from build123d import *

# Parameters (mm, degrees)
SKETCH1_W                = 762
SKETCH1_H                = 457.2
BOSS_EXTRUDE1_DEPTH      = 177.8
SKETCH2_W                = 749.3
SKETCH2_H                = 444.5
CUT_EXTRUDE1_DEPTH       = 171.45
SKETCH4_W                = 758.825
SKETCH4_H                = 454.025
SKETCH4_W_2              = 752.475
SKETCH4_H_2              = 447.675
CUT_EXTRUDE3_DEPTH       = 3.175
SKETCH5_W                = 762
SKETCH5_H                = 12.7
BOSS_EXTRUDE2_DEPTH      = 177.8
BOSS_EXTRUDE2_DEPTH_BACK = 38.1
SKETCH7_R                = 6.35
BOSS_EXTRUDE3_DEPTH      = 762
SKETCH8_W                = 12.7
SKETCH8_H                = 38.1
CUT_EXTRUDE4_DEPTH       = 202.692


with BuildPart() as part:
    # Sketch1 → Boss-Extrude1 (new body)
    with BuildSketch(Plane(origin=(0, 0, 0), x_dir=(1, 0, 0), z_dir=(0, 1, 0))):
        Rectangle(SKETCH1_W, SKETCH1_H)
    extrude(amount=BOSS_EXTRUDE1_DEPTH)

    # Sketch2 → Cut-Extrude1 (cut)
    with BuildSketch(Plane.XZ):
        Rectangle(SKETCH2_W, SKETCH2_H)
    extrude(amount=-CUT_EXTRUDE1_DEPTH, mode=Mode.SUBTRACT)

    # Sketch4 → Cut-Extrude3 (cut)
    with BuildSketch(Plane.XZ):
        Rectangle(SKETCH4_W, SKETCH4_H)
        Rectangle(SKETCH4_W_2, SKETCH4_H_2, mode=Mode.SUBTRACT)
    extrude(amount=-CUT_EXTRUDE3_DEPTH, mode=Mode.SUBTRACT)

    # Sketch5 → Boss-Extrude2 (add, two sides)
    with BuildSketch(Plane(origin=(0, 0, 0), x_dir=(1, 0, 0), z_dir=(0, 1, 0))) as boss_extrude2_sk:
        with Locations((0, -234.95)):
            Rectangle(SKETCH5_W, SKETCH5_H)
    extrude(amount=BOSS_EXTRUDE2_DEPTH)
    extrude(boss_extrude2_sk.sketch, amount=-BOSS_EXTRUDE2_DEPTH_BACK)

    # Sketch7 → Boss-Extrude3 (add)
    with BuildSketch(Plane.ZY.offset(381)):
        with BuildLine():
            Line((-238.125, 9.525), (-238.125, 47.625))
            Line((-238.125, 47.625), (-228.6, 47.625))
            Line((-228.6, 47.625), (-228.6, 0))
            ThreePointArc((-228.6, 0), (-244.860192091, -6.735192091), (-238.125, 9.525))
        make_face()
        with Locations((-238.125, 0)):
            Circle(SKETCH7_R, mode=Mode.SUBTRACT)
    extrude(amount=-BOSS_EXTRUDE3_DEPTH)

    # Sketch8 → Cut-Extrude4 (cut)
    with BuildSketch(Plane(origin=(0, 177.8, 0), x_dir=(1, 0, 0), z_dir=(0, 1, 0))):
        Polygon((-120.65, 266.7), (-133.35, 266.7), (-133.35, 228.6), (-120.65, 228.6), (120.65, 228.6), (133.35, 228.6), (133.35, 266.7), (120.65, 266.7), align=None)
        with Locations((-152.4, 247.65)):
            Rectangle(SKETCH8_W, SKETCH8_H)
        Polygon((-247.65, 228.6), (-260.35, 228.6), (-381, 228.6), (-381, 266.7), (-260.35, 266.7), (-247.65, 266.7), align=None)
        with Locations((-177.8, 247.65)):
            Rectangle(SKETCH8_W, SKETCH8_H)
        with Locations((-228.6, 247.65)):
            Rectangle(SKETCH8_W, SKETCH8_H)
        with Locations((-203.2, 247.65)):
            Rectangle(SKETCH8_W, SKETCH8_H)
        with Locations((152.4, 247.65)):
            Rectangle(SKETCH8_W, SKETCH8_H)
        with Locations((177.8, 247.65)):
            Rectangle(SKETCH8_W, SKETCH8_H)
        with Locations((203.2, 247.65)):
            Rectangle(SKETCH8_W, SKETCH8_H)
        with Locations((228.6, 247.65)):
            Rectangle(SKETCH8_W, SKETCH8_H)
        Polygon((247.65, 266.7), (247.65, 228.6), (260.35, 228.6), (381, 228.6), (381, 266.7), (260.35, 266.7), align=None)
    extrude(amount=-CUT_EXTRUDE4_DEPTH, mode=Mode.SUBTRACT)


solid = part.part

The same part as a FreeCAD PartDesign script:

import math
import FreeCAD as App
import Part
import Sketcher
Q = App.Units.Quantity

doc = App.newDocument("Part")
params = doc.addObject("Spreadsheet::Sheet", "Params")
for row, (alias, value) in enumerate([
    ("sketch1_width", "30 in"),
    ("sketch1_height", "18 in"),
    ("pad1_length", "7 in"),
    ("sketch2_width", "29.5 in"),
    ("sketch2_height", "17.5 in"),
    ("pocket1_length", "6.75 in"),
    ("sketch3_width", "29.875 in"),
    ("sketch3_width2", "29.625 in"),
    ("sketch3_height", "17.875 in"),
    ("sketch3_height2", "17.625 in"),
    ("pocket2_length", "0.125 in"),
    ("sketch4_width", "30 in"),
    ("sketch4_height", "0.5 in"),
    ("pad2_length", "7 in"),
    ("pad2_length2", "1.5 in"),
    ("sketch5_diameter", "0.5 in"),
    ("sketch5_width", "1.5 in"),
    ("sketch5_radius", "0.375 in"),
    ("pad3_length", "30 in"),
    ("sketch6_width", "10.5 in"),
    ("sketch6_width2", "0.5 in"),
    ("sketch6_height", "1.5 in"),
    ("pocket3_length", "7.98 in"),
], start=1):
    params.set(f"A{row}", alias)
    params.set(f"B{row}", "=" + value)
    params.setAlias(f"B{row}", alias)

body = doc.addObject("PartDesign::Body", "Body")

# Sketch on XZ plane
sketch1 = doc.addObject("Sketcher::SketchObject", "Sketch")
body.addObject(sketch1)
sketch1.AttachmentSupport = (doc.XZ_Plane, [""])
sketch1.MapMode = "FlatFace"
sketch1.addGeometry(Part.LineSegment(App.Vector(-381, -228.6, 0), App.Vector(-381, 228.6, 0)), False)
sketch1.addGeometry(Part.LineSegment(App.Vector(-381, 228.6, 0), App.Vector(381, 228.6, 0)), False)
sketch1.addGeometry(Part.LineSegment(App.Vector(381, 228.6, 0), App.Vector(381, -228.6, 0)), False)
sketch1.addGeometry(Part.LineSegment(App.Vector(381, -228.6, 0), App.Vector(-381, -228.6, 0)), False)
sketch1.addConstraint(Sketcher.Constraint("Coincident", 0, 2, 1, 1))
sketch1.addConstraint(Sketcher.Constraint("Coincident", 1, 2, 2, 1))
sketch1.addConstraint(Sketcher.Constraint("Coincident", 2, 2, 3, 1))
sketch1.addConstraint(Sketcher.Constraint("Coincident", 3, 2, 0, 1))
sketch1.addConstraint(Sketcher.Constraint("Vertical", 0))
sketch1.addConstraint(Sketcher.Constraint("Horizontal", 1))
sketch1.addConstraint(Sketcher.Constraint("Vertical", 2))
sketch1.addConstraint(Sketcher.Constraint("Horizontal", 3))
sketch1.addConstraint(Sketcher.Constraint("Symmetric", 0, 2, 2, 2, -1, 1))
sketch1.addConstraint(Sketcher.Constraint("DistanceX", 1, 1, 1, 2, Q("30 in")))
sketch1.addConstraint(Sketcher.Constraint("DistanceY", 0, 1, 0, 2, Q("18 in")))
sketch1.setExpression("Constraints[9]", "Params.sketch1_width")
sketch1.setExpression("Constraints[10]", "Params.sketch1_height")
pad1 = doc.addObject("PartDesign::Pad", "Pad")
body.addObject(pad1)
pad1.Profile = sketch1
pad1.setExpression("Length", "Params.pad1_length")
pad1.Reversed = True

# Sketch on XZ plane
sketch2 = doc.addObject("Sketcher::SketchObject", "Sketch001")
body.addObject(sketch2)
sketch2.AttachmentSupport = (doc.XZ_Plane, [""])
sketch2.MapMode = "FlatFace"
sketch2.addGeometry(Part.LineSegment(App.Vector(-374.65, 222.25, 0), App.Vector(-374.65, -222.25, 0)), False)
sketch2.addGeometry(Part.LineSegment(App.Vector(-374.65, -222.25, 0), App.Vector(374.65, -222.25, 0)), False)
sketch2.addGeometry(Part.LineSegment(App.Vector(374.65, -222.25, 0), App.Vector(374.65, 222.25, 0)), False)
sketch2.addGeometry(Part.LineSegment(App.Vector(374.65, 222.25, 0), App.Vector(-374.65, 222.25, 0)), False)
sketch2.addConstraint(Sketcher.Constraint("Coincident", 0, 2, 1, 1))
sketch2.addConstraint(Sketcher.Constraint("Coincident", 1, 2, 2, 1))
sketch2.addConstraint(Sketcher.Constraint("Coincident", 2, 2, 3, 1))
sketch2.addConstraint(Sketcher.Constraint("Coincident", 3, 2, 0, 1))
sketch2.addConstraint(Sketcher.Constraint("Vertical", 0))
sketch2.addConstraint(Sketcher.Constraint("Horizontal", 1))
sketch2.addConstraint(Sketcher.Constraint("Vertical", 2))
sketch2.addConstraint(Sketcher.Constraint("Horizontal", 3))
sketch2.addConstraint(Sketcher.Constraint("Symmetric", 0, 2, 2, 2, -1, 1))
sketch2.addConstraint(Sketcher.Constraint("DistanceX", 1, 1, 1, 2, Q("29.5 in")))
sketch2.addConstraint(Sketcher.Constraint("DistanceY", 0, 2, 0, 1, Q("17.5 in")))
sketch2.setExpression("Constraints[9]", "Params.sketch2_width")
sketch2.setExpression("Constraints[10]", "Params.sketch2_height")
pocket1 = doc.addObject("PartDesign::Pocket", "Pocket")
body.addObject(pocket1)
pocket1.Profile = sketch2
pocket1.setExpression("Length", "Params.pocket1_length")

# Sketch on XZ plane
sketch3 = doc.addObject("Sketcher::SketchObject", "Sketch002")
body.addObject(sketch3)
sketch3.AttachmentSupport = (doc.XZ_Plane, [""])
sketch3.MapMode = "FlatFace"
sketch3.addGeometry(Part.LineSegment(App.Vector(-379.4125, 227.0125, 0), App.Vector(-379.4125, -227.0125, 0)), False)
sketch3.addGeometry(Part.LineSegment(App.Vector(-379.4125, -227.0125, 0), App.Vector(379.4125, -227.0125, 0)), False)
sketch3.addGeometry(Part.LineSegment(App.Vector(379.4125, -227.0125, 0), App.Vector(379.4125, 227.0125, 0)), False)
sketch3.addGeometry(Part.LineSegment(App.Vector(379.4125, 227.0125, 0), App.Vector(-379.4125, 227.0125, 0)), False)
sketch3.addGeometry(Part.LineSegment(App.Vector(376.2375, -223.8375, 0), App.Vector(-376.2375, -223.8375, 0)), False)
sketch3.addGeometry(Part.LineSegment(App.Vector(-376.2375, -223.8375, 0), App.Vector(-376.2375, 223.8375, 0)), False)
sketch3.addGeometry(Part.LineSegment(App.Vector(-376.2375, 223.8375, 0), App.Vector(376.2375, 223.8375, 0)), False)
sketch3.addGeometry(Part.LineSegment(App.Vector(376.2375, 223.8375, 0), App.Vector(376.2375, -223.8375, 0)), False)
sketch3.addConstraint(Sketcher.Constraint("Coincident", 0, 2, 1, 1))
sketch3.addConstraint(Sketcher.Constraint("Coincident", 1, 2, 2, 1))
sketch3.addConstraint(Sketcher.Constraint("Coincident", 2, 2, 3, 1))
sketch3.addConstraint(Sketcher.Constraint("Coincident", 3, 2, 0, 1))
sketch3.addConstraint(Sketcher.Constraint("Coincident", 4, 2, 5, 1))
sketch3.addConstraint(Sketcher.Constraint("Coincident", 5, 2, 6, 1))
sketch3.addConstraint(Sketcher.Constraint("Coincident", 6, 2, 7, 1))
sketch3.addConstraint(Sketcher.Constraint("Coincident", 7, 2, 4, 1))
sketch3.addConstraint(Sketcher.Constraint("Vertical", 0))
sketch3.addConstraint(Sketcher.Constraint("Horizontal", 1))
sketch3.addConstraint(Sketcher.Constraint("Vertical", 2))
sketch3.addConstraint(Sketcher.Constraint("Horizontal", 3))
sketch3.addConstraint(Sketcher.Constraint("Horizontal", 4))
sketch3.addConstraint(Sketcher.Constraint("Vertical", 5))
sketch3.addConstraint(Sketcher.Constraint("Horizontal", 6))
sketch3.addConstraint(Sketcher.Constraint("Vertical", 7))
sketch3.addConstraint(Sketcher.Constraint("Symmetric", 0, 2, 2, 2, -1, 1))
sketch3.addConstraint(Sketcher.Constraint("Symmetric", 4, 2, 6, 2, -1, 1))
sketch3.addConstraint(Sketcher.Constraint("DistanceX", 1, 1, 1, 2, Q("29.875 in")))
sketch3.addConstraint(Sketcher.Constraint("DistanceX", 4, 2, 4, 1, Q("29.625 in")))
sketch3.addConstraint(Sketcher.Constraint("DistanceY", 0, 2, 0, 1, Q("17.875 in")))
sketch3.addConstraint(Sketcher.Constraint("DistanceY", 5, 1, 5, 2, Q("17.625 in")))
sketch3.setExpression("Constraints[18]", "Params.sketch3_width")
sketch3.setExpression("Constraints[19]", "Params.sketch3_width2")
sketch3.setExpression("Constraints[20]", "Params.sketch3_height")
sketch3.setExpression("Constraints[21]", "Params.sketch3_height2")
pocket2 = doc.addObject("PartDesign::Pocket", "Pocket001")
body.addObject(pocket2)
pocket2.Profile = sketch3
pocket2.setExpression("Length", "Params.pocket2_length")

# Sketch on XZ plane
sketch4 = doc.addObject("Sketcher::SketchObject", "Sketch003")
body.addObject(sketch4)
sketch4.AttachmentSupport = (doc.XZ_Plane, [""])
sketch4.MapMode = "FlatFace"
sketch4.addGeometry(Part.LineSegment(App.Vector(-381, 228.6, 0), App.Vector(-381, 241.3, 0)), False)
sketch4.addGeometry(Part.LineSegment(App.Vector(-381, 241.3, 0), App.Vector(381, 241.3, 0)), False)
sketch4.addGeometry(Part.LineSegment(App.Vector(381, 241.3, 0), App.Vector(381, 228.6, 0)), False)
sketch4.addGeometry(Part.LineSegment(App.Vector(381, 228.6, 0), App.Vector(-381, 228.6, 0)), False)
sketch4.addConstraint(Sketcher.Constraint("Coincident", 0, 2, 1, 1))
sketch4.addConstraint(Sketcher.Constraint("Coincident", 1, 2, 2, 1))
sketch4.addConstraint(Sketcher.Constraint("Coincident", 2, 2, 3, 1))
sketch4.addConstraint(Sketcher.Constraint("Coincident", 3, 2, 0, 1))
sketch4.addConstraint(Sketcher.Constraint("Vertical", 0))
sketch4.addConstraint(Sketcher.Constraint("Horizontal", 1))
sketch4.addConstraint(Sketcher.Constraint("Vertical", 2))
sketch4.addConstraint(Sketcher.Constraint("Horizontal", 3))
sketch4.addConstraint(Sketcher.Constraint("DistanceX", 1, 1, 1, 2, Q("30 in")))
sketch4.addConstraint(Sketcher.Constraint("DistanceY", 0, 1, 0, 2, Q("0.5 in")))
sketch4.addConstraint(Sketcher.Constraint("DistanceX", 0, 2, -1, 1, Q("15 in")))
sketch4.addConstraint(Sketcher.Constraint("DistanceY", -1, 1, 2, 2, Q("9 in")))
sketch4.setExpression("Constraints[8]", "Params.sketch4_width")
sketch4.setExpression("Constraints[9]", "Params.sketch4_height")
pad2 = doc.addObject("PartDesign::Pad", "Pad001")
body.addObject(pad2)
pad2.Profile = sketch4
pad2.Type = "TwoLengths"
pad2.setExpression("Length", "Params.pad2_length")
pad2.setExpression("Length2", "Params.pad2_length2")
pad2.Reversed = True

# Sketch on YZ plane
sketch5 = doc.addObject("Sketcher::SketchObject", "Sketch004")
body.addObject(sketch5)
sketch5.AttachmentSupport = (doc.YZ_Plane, [""])
sketch5.MapMode = "FlatFace"
sketch5.AttachmentOffset = App.Placement(App.Vector(0, 0, -15 * 25.4), App.Rotation())
sketch5.addGeometry(Part.LineSegment(App.Vector(47.625, -238.125, 0), App.Vector(9.525, -238.125, 0)), False)
sketch5.addGeometry(Part.ArcOfCircle(Part.Circle(App.Vector(0, -238.125, 0), App.Vector(0, 0, 1), 9.525), math.radians(90), math.radians(360)), False)
sketch5.addGeometry(Part.LineSegment(App.Vector(0, -228.6, 0), App.Vector(47.625, -228.6, 0)), False)
sketch5.addGeometry(Part.LineSegment(App.Vector(47.625, -228.6, 0), App.Vector(47.625, -238.125, 0)), False)
sketch5.addGeometry(Part.Circle(App.Vector(0, -238.125, 0), App.Vector(0, 0, 1), 6.35), False)
sketch5.addConstraint(Sketcher.Constraint("Coincident", 0, 2, 1, 2))
sketch5.addConstraint(Sketcher.Constraint("Tangent", 1, 1, 2, 1))
sketch5.addConstraint(Sketcher.Constraint("Coincident", 2, 2, 3, 1))
sketch5.addConstraint(Sketcher.Constraint("Coincident", 3, 2, 0, 1))
sketch5.addConstraint(Sketcher.Constraint("Horizontal", 0))
sketch5.addConstraint(Sketcher.Constraint("Horizontal", 2))
sketch5.addConstraint(Sketcher.Constraint("Vertical", 3))
sketch5.addConstraint(Sketcher.Constraint("Coincident", 4, 3, 1, 3))
sketch5.addConstraint(Sketcher.Constraint("PointOnObject", 1, 3, -2))
sketch5.addConstraint(Sketcher.Constraint("Horizontal", 4, 3, 0, 2))
sketch5.addConstraint(Sketcher.Constraint("Diameter", 4, Q("0.5 in")))
sketch5.addConstraint(Sketcher.Constraint("DistanceX", 0, 2, 0, 1, Q("1.5 in")))
sketch5.addConstraint(Sketcher.Constraint("DistanceY", 1, 1, -1, 1, Q("9 in")))
sketch5.addConstraint(Sketcher.Constraint("Radius", 1, Q("0.375 in")))
sketch5.setExpression("Constraints[10]", "Params.sketch5_diameter")
sketch5.setExpression("Constraints[11]", "Params.sketch5_width")
sketch5.setExpression("Constraints[13]", "Params.sketch5_radius")
pad3 = doc.addObject("PartDesign::Pad", "Pad002")
body.addObject(pad3)
pad3.Profile = sketch5
pad3.setExpression("Length", "Params.pad3_length")

# Sketch on XZ plane
sketch6 = doc.addObject("Sketcher::SketchObject", "Sketch005")
body.addObject(sketch6)
sketch6.AttachmentSupport = (doc.XZ_Plane, [""])
sketch6.MapMode = "FlatFace"
sketch6.AttachmentOffset = App.Placement(App.Vector(0, 0, -7 * 25.4), App.Rotation())
sketch6.addGeometry(Part.LineSegment(App.Vector(-133.35, -266.7, 0), App.Vector(-133.35, -228.6, 0)), False)
sketch6.addGeometry(Part.LineSegment(App.Vector(-133.35, -228.6, 0), App.Vector(133.35, -228.6, 0)), False)
sketch6.addGeometry(Part.LineSegment(App.Vector(133.35, -228.6, 0), App.Vector(133.35, -266.7, 0)), False)
sketch6.addGeometry(Part.LineSegment(App.Vector(133.35, -266.7, 0), App.Vector(-133.35, -266.7, 0)), False)
sketch6.addGeometry(Part.LineSegment(App.Vector(-158.75, -266.7, 0), App.Vector(-158.75, -228.6, 0)), False)
sketch6.addGeometry(Part.LineSegment(App.Vector(-158.75, -228.6, 0), App.Vector(-146.05, -228.6, 0)), False)
sketch6.addGeometry(Part.LineSegment(App.Vector(-146.05, -228.6, 0), App.Vector(-146.05, -266.7, 0)), False)
sketch6.addGeometry(Part.LineSegment(App.Vector(-146.05, -266.7, 0), App.Vector(-158.75, -266.7, 0)), False)
sketch6.addGeometry(Part.LineSegment(App.Vector(-381, -228.6, 0), App.Vector(-247.65, -228.6, 0)), False)
sketch6.addGeometry(Part.LineSegment(App.Vector(-247.65, -228.6, 0), App.Vector(-247.65, -266.7, 0)), False)
sketch6.addGeometry(Part.LineSegment(App.Vector(-247.65, -266.7, 0), App.Vector(-381, -266.7, 0)), False)
sketch6.addGeometry(Part.LineSegment(App.Vector(-381, -266.7, 0), App.Vector(-381, -228.6, 0)), False)
sketch6.addGeometry(Part.LineSegment(App.Vector(-184.15, -266.7, 0), App.Vector(-184.15, -228.6, 0)), False)
sketch6.addGeometry(Part.LineSegment(App.Vector(-184.15, -228.6, 0), App.Vector(-171.45, -228.6, 0)), False)
sketch6.addGeometry(Part.LineSegment(App.Vector(-171.45, -228.6, 0), App.Vector(-171.45, -266.7, 0)), False)
sketch6.addGeometry(Part.LineSegment(App.Vector(-171.45, -266.7, 0), App.Vector(-184.15, -266.7, 0)), False)
sketch6.addGeometry(Part.LineSegment(App.Vector(-234.95, -266.7, 0), App.Vector(-234.95, -228.6, 0)), False)
sketch6.addGeometry(Part.LineSegment(App.Vector(-234.95, -228.6, 0), App.Vector(-222.25, -228.6, 0)), False)
sketch6.addGeometry(Part.LineSegment(App.Vector(-222.25, -228.6, 0), App.Vector(-222.25, -266.7, 0)), False)
sketch6.addGeometry(Part.LineSegment(App.Vector(-222.25, -266.7, 0), App.Vector(-234.95, -266.7, 0)), False)
sketch6.addGeometry(Part.LineSegment(App.Vector(-209.55, -266.7, 0), App.Vector(-209.55, -228.6, 0)), False)
sketch6.addGeometry(Part.LineSegment(App.Vector(-209.55, -228.6, 0), App.Vector(-196.85, -228.6, 0)), False)
sketch6.addGeometry(Part.LineSegment(App.Vector(-196.85, -228.6, 0), App.Vector(-196.85, -266.7, 0)), False)
sketch6.addGeometry(Part.LineSegment(App.Vector(-196.85, -266.7, 0), App.Vector(-209.55, -266.7, 0)), False)
sketch6.addGeometry(Part.LineSegment(App.Vector(146.05, -266.7, 0), App.Vector(146.05, -228.6, 0)), False)
sketch6.addGeometry(Part.LineSegment(App.Vector(146.05, -228.6, 0), App.Vector(158.75, -228.6, 0)), False)
sketch6.addGeometry(Part.LineSegment(App.Vector(158.75, -228.6, 0), App.Vector(158.75, -266.7, 0)), False)
sketch6.addGeometry(Part.LineSegment(App.Vector(158.75, -266.7, 0), App.Vector(146.05, -266.7, 0)), False)
sketch6.addGeometry(Part.LineSegment(App.Vector(171.45, -266.7, 0), App.Vector(171.45, -228.6, 0)), False)
sketch6.addGeometry(Part.LineSegment(App.Vector(171.45, -228.6, 0), App.Vector(184.15, -228.6, 0)), False)
sketch6.addGeometry(Part.LineSegment(App.Vector(184.15, -228.6, 0), App.Vector(184.15, -266.7, 0)), False)
sketch6.addGeometry(Part.LineSegment(App.Vector(184.15, -266.7, 0), App.Vector(171.45, -266.7, 0)), False)
sketch6.addGeometry(Part.LineSegment(App.Vector(196.85, -266.7, 0), App.Vector(196.85, -228.6, 0)), False)
sketch6.addGeometry(Part.LineSegment(App.Vector(196.85, -228.6, 0), App.Vector(209.55, -228.6, 0)), False)
sketch6.addGeometry(Part.LineSegment(App.Vector(209.55, -228.6, 0), App.Vector(209.55, -266.7, 0)), False)
sketch6.addGeometry(Part.LineSegment(App.Vector(209.55, -266.7, 0), App.Vector(196.85, -266.7, 0)), False)
sketch6.addGeometry(Part.LineSegment(App.Vector(222.25, -266.7, 0), App.Vector(222.25, -228.6, 0)), False)
sketch6.addGeometry(Part.LineSegment(App.Vector(222.25, -228.6, 0), App.Vector(234.95, -228.6, 0)), False)
sketch6.addGeometry(Part.LineSegment(App.Vector(234.95, -228.6, 0), App.Vector(234.95, -266.7, 0)), False)
sketch6.addGeometry(Part.LineSegment(App.Vector(234.95, -266.7, 0), App.Vector(222.25, -266.7, 0)), False)
sketch6.addGeometry(Part.LineSegment(App.Vector(247.65, -266.7, 0), App.Vector(247.65, -228.6, 0)), False)
sketch6.addGeometry(Part.LineSegment(App.Vector(247.65, -228.6, 0), App.Vector(381, -228.6, 0)), False)
sketch6.addGeometry(Part.LineSegment(App.Vector(381, -228.6, 0), App.Vector(381, -266.7, 0)), False)
sketch6.addGeometry(Part.LineSegment(App.Vector(381, -266.7, 0), App.Vector(247.65, -266.7, 0)), False)
sketch6.addConstraint(Sketcher.Constraint("Coincident", 0, 2, 1, 1))
sketch6.addConstraint(Sketcher.Constraint("Coincident", 1, 2, 2, 1))
sketch6.addConstraint(Sketcher.Constraint("Coincident", 2, 2, 3, 1))
sketch6.addConstraint(Sketcher.Constraint("Coincident", 3, 2, 0, 1))
sketch6.addConstraint(Sketcher.Constraint("Coincident", 4, 2, 5, 1))
sketch6.addConstraint(Sketcher.Constraint("Coincident", 5, 2, 6, 1))
sketch6.addConstraint(Sketcher.Constraint("Coincident", 6, 2, 7, 1))
sketch6.addConstraint(Sketcher.Constraint("Coincident", 7, 2, 4, 1))
sketch6.addConstraint(Sketcher.Constraint("Coincident", 8, 2, 9, 1))
sketch6.addConstraint(Sketcher.Constraint("Coincident", 9, 2, 10, 1))
sketch6.addConstraint(Sketcher.Constraint("Coincident", 10, 2, 11, 1))
sketch6.addConstraint(Sketcher.Constraint("Coincident", 11, 2, 8, 1))
sketch6.addConstraint(Sketcher.Constraint("Coincident", 12, 2, 13, 1))
sketch6.addConstraint(Sketcher.Constraint("Coincident", 13, 2, 14, 1))
sketch6.addConstraint(Sketcher.Constraint("Coincident", 14, 2, 15, 1))
sketch6.addConstraint(Sketcher.Constraint("Coincident", 15, 2, 12, 1))
sketch6.addConstraint(Sketcher.Constraint("Coincident", 16, 2, 17, 1))
sketch6.addConstraint(Sketcher.Constraint("Coincident", 17, 2, 18, 1))
sketch6.addConstraint(Sketcher.Constraint("Coincident", 18, 2, 19, 1))
sketch6.addConstraint(Sketcher.Constraint("Coincident", 19, 2, 16, 1))
sketch6.addConstraint(Sketcher.Constraint("Coincident", 20, 2, 21, 1))
sketch6.addConstraint(Sketcher.Constraint("Coincident", 21, 2, 22, 1))
sketch6.addConstraint(Sketcher.Constraint("Coincident", 22, 2, 23, 1))
sketch6.addConstraint(Sketcher.Constraint("Coincident", 23, 2, 20, 1))
sketch6.addConstraint(Sketcher.Constraint("Coincident", 24, 2, 25, 1))
sketch6.addConstraint(Sketcher.Constraint("Coincident", 25, 2, 26, 1))
sketch6.addConstraint(Sketcher.Constraint("Coincident", 26, 2, 27, 1))
sketch6.addConstraint(Sketcher.Constraint("Coincident", 27, 2, 24, 1))
sketch6.addConstraint(Sketcher.Constraint("Coincident", 28, 2, 29, 1))
sketch6.addConstraint(Sketcher.Constraint("Coincident", 29, 2, 30, 1))
sketch6.addConstraint(Sketcher.Constraint("Coincident", 30, 2, 31, 1))
sketch6.addConstraint(Sketcher.Constraint("Coincident", 31, 2, 28, 1))
sketch6.addConstraint(Sketcher.Constraint("Coincident", 32, 2, 33, 1))
sketch6.addConstraint(Sketcher.Constraint("Coincident", 33, 2, 34, 1))
sketch6.addConstraint(Sketcher.Constraint("Coincident", 34, 2, 35, 1))
sketch6.addConstraint(Sketcher.Constraint("Coincident", 35, 2, 32, 1))
sketch6.addConstraint(Sketcher.Constraint("Coincident", 36, 2, 37, 1))
sketch6.addConstraint(Sketcher.Constraint("Coincident", 37, 2, 38, 1))
sketch6.addConstraint(Sketcher.Constraint("Coincident", 38, 2, 39, 1))
sketch6.addConstraint(Sketcher.Constraint("Coincident", 39, 2, 36, 1))
sketch6.addConstraint(Sketcher.Constraint("Coincident", 40, 2, 41, 1))
sketch6.addConstraint(Sketcher.Constraint("Coincident", 41, 2, 42, 1))
sketch6.addConstraint(Sketcher.Constraint("Coincident", 42, 2, 43, 1))
sketch6.addConstraint(Sketcher.Constraint("Coincident", 43, 2, 40, 1))
sketch6.addConstraint(Sketcher.Constraint("Vertical", 0))
sketch6.addConstraint(Sketcher.Constraint("Horizontal", 1))
sketch6.addConstraint(Sketcher.Constraint("Vertical", 2))
sketch6.addConstraint(Sketcher.Constraint("Horizontal", 3))
sketch6.addConstraint(Sketcher.Constraint("Vertical", 4))
sketch6.addConstraint(Sketcher.Constraint("Horizontal", 5))
sketch6.addConstraint(Sketcher.Constraint("Vertical", 6))
sketch6.addConstraint(Sketcher.Constraint("Horizontal", 7))
sketch6.addConstraint(Sketcher.Constraint("Horizontal", 8))
sketch6.addConstraint(Sketcher.Constraint("Vertical", 9))
sketch6.addConstraint(Sketcher.Constraint("Horizontal", 10))
sketch6.addConstraint(Sketcher.Constraint("Vertical", 11))
sketch6.addConstraint(Sketcher.Constraint("Vertical", 12))
sketch6.addConstraint(Sketcher.Constraint("Horizontal", 13))
sketch6.addConstraint(Sketcher.Constraint("Vertical", 14))
sketch6.addConstraint(Sketcher.Constraint("Horizontal", 15))
sketch6.addConstraint(Sketcher.Constraint("Vertical", 16))
sketch6.addConstraint(Sketcher.Constraint("Horizontal", 17))
sketch6.addConstraint(Sketcher.Constraint("Vertical", 18))
sketch6.addConstraint(Sketcher.Constraint("Horizontal", 19))
sketch6.addConstraint(Sketcher.Constraint("Vertical", 20))
sketch6.addConstraint(Sketcher.Constraint("Horizontal", 21))
sketch6.addConstraint(Sketcher.Constraint("Vertical", 22))
sketch6.addConstraint(Sketcher.Constraint("Horizontal", 23))
sketch6.addConstraint(Sketcher.Constraint("Vertical", 24))
sketch6.addConstraint(Sketcher.Constraint("Horizontal", 25))
sketch6.addConstraint(Sketcher.Constraint("Vertical", 26))
sketch6.addConstraint(Sketcher.Constraint("Horizontal", 27))
sketch6.addConstraint(Sketcher.Constraint("Vertical", 28))
sketch6.addConstraint(Sketcher.Constraint("Horizontal", 29))
sketch6.addConstraint(Sketcher.Constraint("Vertical", 30))
sketch6.addConstraint(Sketcher.Constraint("Horizontal", 31))
sketch6.addConstraint(Sketcher.Constraint("Vertical", 32))
sketch6.addConstraint(Sketcher.Constraint("Horizontal", 33))
sketch6.addConstraint(Sketcher.Constraint("Vertical", 34))
sketch6.addConstraint(Sketcher.Constraint("Horizontal", 35))
sketch6.addConstraint(Sketcher.Constraint("Vertical", 36))
sketch6.addConstraint(Sketcher.Constraint("Horizontal", 37))
sketch6.addConstraint(Sketcher.Constraint("Vertical", 38))
sketch6.addConstraint(Sketcher.Constraint("Horizontal", 39))
sketch6.addConstraint(Sketcher.Constraint("Vertical", 40))
sketch6.addConstraint(Sketcher.Constraint("Horizontal", 41))
sketch6.addConstraint(Sketcher.Constraint("Vertical", 42))
sketch6.addConstraint(Sketcher.Constraint("Horizontal", 43))
sketch6.addConstraint(Sketcher.Constraint("Symmetric", 5, 2, 24, 2, -2))
sketch6.addConstraint(Sketcher.Constraint("Symmetric", 7, 2, 26, 2, -2))
sketch6.addConstraint(Sketcher.Constraint("Symmetric", 13, 2, 28, 2, -2))
sketch6.addConstraint(Sketcher.Constraint("Symmetric", 15, 2, 30, 2, -2))
sketch6.addConstraint(Sketcher.Constraint("Symmetric", 21, 2, 32, 2, -2))
sketch6.addConstraint(Sketcher.Constraint("Symmetric", 23, 2, 34, 2, -2))
sketch6.addConstraint(Sketcher.Constraint("Symmetric", 17, 2, 36, 2, -2))
sketch6.addConstraint(Sketcher.Constraint("Symmetric", 19, 2, 38, 2, -2))
sketch6.addConstraint(Sketcher.Constraint("Symmetric", 8, 2, 40, 2, -2))
sketch6.addConstraint(Sketcher.Constraint("Symmetric", 10, 2, 42, 2, -2))
sketch6.addConstraint(Sketcher.Constraint("Horizontal", 1, 2, 4, 2))
sketch6.addConstraint(Sketcher.Constraint("Horizontal", 3, 2, 6, 2))
sketch6.addConstraint(Sketcher.Constraint("Horizontal", 5, 2, 8, 2))
sketch6.addConstraint(Sketcher.Constraint("Horizontal", 7, 2, 9, 2))
sketch6.addConstraint(Sketcher.Constraint("Horizontal", 11, 2, 12, 2))
sketch6.addConstraint(Sketcher.Constraint("Horizontal", 10, 2, 14, 2))
sketch6.addConstraint(Sketcher.Constraint("Horizontal", 13, 2, 16, 2))
sketch6.addConstraint(Sketcher.Constraint("Horizontal", 15, 2, 18, 2))
sketch6.addConstraint(Sketcher.Constraint("Horizontal", 17, 2, 20, 2))
sketch6.addConstraint(Sketcher.Constraint("Horizontal", 19, 2, 22, 2))
sketch6.addConstraint(Sketcher.Constraint("Equal", 7, 13))
sketch6.addConstraint(Sketcher.Constraint("Equal", 15, 17))
sketch6.addConstraint(Sketcher.Constraint("Equal", 19, 21))
sketch6.addConstraint(Sketcher.Constraint("DistanceX", 1, 1, 1, 2, Q("10.5 in")))
sketch6.addConstraint(Sketcher.Constraint("DistanceX", 5, 1, 5, 2, Q("0.5 in")))
sketch6.addConstraint(Sketcher.Constraint("DistanceY", 0, 1, 0, 2, Q("1.5 in")))
sketch6.addConstraint(Sketcher.Constraint("DistanceY", 0, 2, -1, 1, Q("9 in")))
sketch6.addConstraint(Sketcher.Constraint("DistanceX", 10, 2, -1, 1, Q("15 in")))
sketch6.addConstraint(Sketcher.Constraint("DistanceX", 4, 2, 0, 2, Q("1 in")))
sketch6.addConstraint(Sketcher.Constraint("DistanceX", 8, 2, 5, 2, Q("4 in")))
sketch6.addConstraint(Sketcher.Constraint("DistanceX", 12, 2, 4, 2, Q("1 in")))
sketch6.addConstraint(Sketcher.Constraint("DistanceX", 16, 2, 12, 2, Q("2 in")))
sketch6.addConstraint(Sketcher.Constraint("DistanceX", 16, 2, 20, 2, Q("1 in")))
sketch6.addConstraint(Sketcher.Constraint("DistanceX", 0, 2, 24, 2, Q("11 in")))
sketch6.setExpression("Constraints[111]", "Params.sketch6_width")
sketch6.setExpression("Constraints[112]", "Params.sketch6_width2")
sketch6.setExpression("Constraints[113]", "Params.sketch6_height")
pocket3 = doc.addObject("PartDesign::Pocket", "Pocket002")
body.addObject(pocket3)
pocket3.Profile = sketch6
pocket3.setExpression("Length", "Params.pocket3_length")
pocket3.Reversed = True

doc.recompute()
